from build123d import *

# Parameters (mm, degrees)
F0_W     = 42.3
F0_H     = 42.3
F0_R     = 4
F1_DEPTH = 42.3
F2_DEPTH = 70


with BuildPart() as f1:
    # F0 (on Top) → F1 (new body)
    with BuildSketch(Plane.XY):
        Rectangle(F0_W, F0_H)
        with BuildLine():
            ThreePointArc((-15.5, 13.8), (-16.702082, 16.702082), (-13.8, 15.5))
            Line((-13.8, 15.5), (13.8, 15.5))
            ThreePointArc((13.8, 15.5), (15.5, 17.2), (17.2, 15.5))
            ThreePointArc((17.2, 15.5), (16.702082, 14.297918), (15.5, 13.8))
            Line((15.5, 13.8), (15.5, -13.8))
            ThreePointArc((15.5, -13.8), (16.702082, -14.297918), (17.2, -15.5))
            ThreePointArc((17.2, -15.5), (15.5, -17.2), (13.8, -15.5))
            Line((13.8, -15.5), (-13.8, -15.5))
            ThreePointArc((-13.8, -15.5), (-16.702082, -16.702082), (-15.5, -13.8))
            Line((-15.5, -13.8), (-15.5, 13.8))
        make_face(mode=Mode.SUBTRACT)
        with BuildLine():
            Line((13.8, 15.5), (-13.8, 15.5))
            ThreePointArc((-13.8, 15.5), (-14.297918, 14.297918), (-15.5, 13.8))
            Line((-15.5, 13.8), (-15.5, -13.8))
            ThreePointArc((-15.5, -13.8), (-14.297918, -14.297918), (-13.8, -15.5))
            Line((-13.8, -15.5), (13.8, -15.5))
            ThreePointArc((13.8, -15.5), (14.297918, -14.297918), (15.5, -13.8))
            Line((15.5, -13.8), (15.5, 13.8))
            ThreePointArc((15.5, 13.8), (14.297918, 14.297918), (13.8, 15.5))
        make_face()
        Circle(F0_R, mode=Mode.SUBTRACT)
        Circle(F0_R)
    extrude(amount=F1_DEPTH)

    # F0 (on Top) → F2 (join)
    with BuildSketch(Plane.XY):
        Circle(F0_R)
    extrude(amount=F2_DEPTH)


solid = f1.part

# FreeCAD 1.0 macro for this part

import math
import FreeCAD as App
import Part
import Sketcher

V = App.Vector
Q = App.Units.Quantity


def add_polygon(sketch, points):
    """Adds a closed chain of lines whose ends are joined by coincident constraints."""
    first, n = sketch.GeometryCount, len(points)
    for a, b in zip(points, points[1:] + points[:1]):
        sketch.addGeometry(Part.LineSegment(App.Vector(*a, 0), App.Vector(*b, 0)), False)
    for i in range(n):
        sketch.addConstraint(Sketcher.Constraint("Coincident", first + i, 2, first + (i + 1) % n, 1))

doc = App.newDocument("Part")
body = doc.addObject("PartDesign::Body", "Body")

# Sketch on XY plane
sketch1 = body.newObject("Sketcher::SketchObject", "Sketch")
sketch1.AttachmentSupport = (doc.getObject("XY_Plane"), [""])
sketch1.MapMode = "FlatFace"
add_polygon(sketch1, [(-21.1, 21.1), (-21.1, -21.1), (21.1, -21.1), (21.1, 21.1)])  # lines 0-3
sketch1.addGeometry(Part.ArcOfCircle(Part.Circle(V(-15.5, -15.5, 0), V(0, 0, 1), 1.7), math.radians(90), math.radians(360)), False)  # 4
sketch1.addGeometry(Part.ArcOfCircle(Part.Circle(V(-15.5, -15.5, 0), V(0, 0, 1), 1.7), math.radians(0), math.radians(90)), False)  # 5
sketch1.addGeometry(Part.ArcOfCircle(Part.Circle(V(15.5, -15.5, 0), V(0, 0, 1), 1.7), math.radians(180), math.radians(360)), False)  # 6
sketch1.addGeometry(Part.ArcOfCircle(Part.Circle(V(15.5, -15.5, 0), V(0, 0, 1), 1.7), math.radians(90), math.radians(180)), False)  # 7
sketch1.addGeometry(Part.ArcOfCircle(Part.Circle(V(15.5, -15.5, 0), V(0, 0, 1), 1.7), math.radians(0), math.radians(90)), False)  # 8
sketch1.addGeometry(Part.ArcOfCircle(Part.Circle(V(-15.5, 15.5, 0), V(0, 0, 1), 1.7), math.radians(0), math.radians(270)), False)  # 9
sketch1.addGeometry(Part.ArcOfCircle(Part.Circle(V(-15.5, 15.5, 0), V(0, 0, 1), 1.7), math.radians(-90), math.radians(0)), False)  # 10
sketch1.addGeometry(Part.ArcOfCircle(Part.Circle(V(15.5, 15.5, 0), V(0, 0, 1), 1.7), math.radians(-90), math.radians(0)), False)  # 11
sketch1.addGeometry(Part.ArcOfCircle(Part.Circle(V(15.5, 15.5, 0), V(0, 0, 1), 1.7), math.radians(180), math.radians(270)), False)  # 12
sketch1.addGeometry(Part.ArcOfCircle(Part.Circle(V(15.5, 15.5, 0), V(0, 0, 1), 1.7), math.radians(0), math.radians(180)), False)  # 13
sketch1.addConstraint(Sketcher.Constraint("Tangent", 4, 1, 5, 2))
sketch1.addConstraint(Sketcher.Constraint("Coincident", 5, 1, 4, 2))
sketch1.addConstraint(Sketcher.Constraint("Tangent", 6, 1, 7, 2))
sketch1.addConstraint(Sketcher.Constraint("Tangent", 7, 1, 8, 2))
sketch1.addConstraint(Sketcher.Constraint("Tangent", 8, 1, 6, 2))
sketch1.addConstraint(Sketcher.Constraint("Tangent", 9, 1, 10, 2))
sketch1.addConstraint(Sketcher.Constraint("Coincident", 10, 1, 9, 2))
sketch1.addConstraint(Sketcher.Constraint("Tangent", 11, 1, 12, 2))
sketch1.addConstraint(Sketcher.Constraint("Tangent", 12, 1, 13, 2))
sketch1.addConstraint(Sketcher.Constraint("Tangent", 13, 1, 11, 2))
sketch1.addConstraint(Sketcher.Constraint("Vertical", 0))
sketch1.addConstraint(Sketcher.Constraint("Horizontal", 1))
sketch1.addConstraint(Sketcher.Constraint("Vertical", 2))
sketch1.addConstraint(Sketcher.Constraint("Horizontal", 3))
sketch1.addConstraint(Sketcher.Constraint("Equal", 5, 6))
sketch1.addConstraint(Sketcher.Constraint("Equal", 8, 9))
sketch1.addConstraint(Sketcher.Constraint("Equal", 10, 11))
sketch1.addConstraint(Sketcher.Constraint("Symmetric", 6, 3, 9, 3, -1, 1))
sketch1.addConstraint(Sketcher.Constraint("Symmetric", 4, 3, 11, 3, -1, 1))
sketch1.addConstraint(Sketcher.Constraint("Symmetric", 0, 2, 2, 2, -1, 1))
sketch1.addConstraint(Sketcher.Constraint("Symmetric", 4, 3, 6, 3, -2))
sketch1.addConstraint(Sketcher.Constraint("Horizontal", 8, 3, 5, 1))
sketch1.addConstraint(Sketcher.Constraint("Horizontal", 5, 1, 6, 1))
sketch1.addConstraint(Sketcher.Constraint("Horizontal", 6, 1, 8, 1))
sketch1.addConstraint(Sketcher.Constraint("Horizontal", 13, 3, 9, 1))
sketch1.addConstraint(Sketcher.Constraint("Horizontal", 9, 1, 12, 1))
sketch1.addConstraint(Sketcher.Constraint("Horizontal", 12, 1, 13, 1))
sketch1.addConstraint(Sketcher.Constraint("Vertical", 10, 3, 4, 1))
sketch1.addConstraint(Sketcher.Constraint("Vertical", 13, 3, 7, 1))
sketch1.addConstraint(Sketcher.Constraint("Vertical", 4, 1, 10, 1))
sketch1.addConstraint(Sketcher.Constraint("Vertical", 7, 1, 11, 1))
sketch1.addConstraint(Sketcher.Constraint("Equal", 3, 0))
sketch1.addConstraint(Sketcher.Constraint("Radius", 4, Q("1.7 mm")))
sketch1.addConstraint(Sketcher.Constraint("DistanceX", 1, 1, 1, 2, Q("42.3 mm")))
sketch1.addConstraint(Sketcher.Constraint("DistanceX", 5, 3, 6, 3, Q("30.999998 mm")))
sketch1.addConstraint(Sketcher.Constraint("DistanceY", 5, 3, 9, 3, Q("30.999999 mm")))
pad1 = body.newObject("PartDesign::Pad", "Pad")
pad1.Profile = sketch1
pad1.Length = 42.3

# Sketch on XY plane
sketch2 = body.newObject("Sketcher::SketchObject", "Sketch001")
sketch2.AttachmentSupport = (doc.getObject("XY_Plane"), [""])
sketch2.MapMode = "FlatFace"
sketch2.addGeometry(Part.Circle(V(0, 0, 0), V(0, 0, 1), 4), False)
sketch2.addConstraint(Sketcher.Constraint("Coincident", 0, 3, -1, 1))
sketch2.addConstraint(Sketcher.Constraint("Diameter", 0, Q("8 mm")))
pad2 = body.newObject("PartDesign::Pad", "Pad001")
pad2.Profile = sketch2
pad2.Length = 70

doc.recompute()
